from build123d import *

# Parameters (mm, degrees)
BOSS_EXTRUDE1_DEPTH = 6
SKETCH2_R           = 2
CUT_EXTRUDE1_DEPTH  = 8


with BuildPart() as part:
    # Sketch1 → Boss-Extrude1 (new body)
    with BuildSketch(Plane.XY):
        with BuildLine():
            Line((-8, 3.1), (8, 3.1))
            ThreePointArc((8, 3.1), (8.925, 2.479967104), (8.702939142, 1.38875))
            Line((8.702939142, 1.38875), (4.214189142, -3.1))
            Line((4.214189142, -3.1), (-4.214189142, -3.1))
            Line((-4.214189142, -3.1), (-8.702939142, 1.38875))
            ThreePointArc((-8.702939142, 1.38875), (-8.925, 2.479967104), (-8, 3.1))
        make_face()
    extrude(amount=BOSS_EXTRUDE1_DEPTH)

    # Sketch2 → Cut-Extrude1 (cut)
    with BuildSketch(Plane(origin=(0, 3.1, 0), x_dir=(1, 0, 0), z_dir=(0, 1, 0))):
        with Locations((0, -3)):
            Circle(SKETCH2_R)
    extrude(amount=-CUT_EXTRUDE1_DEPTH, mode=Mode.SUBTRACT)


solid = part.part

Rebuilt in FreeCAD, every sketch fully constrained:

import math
import FreeCAD as App
import Part
import Sketcher
Q = App.Units.Quantity

doc = App.newDocument("Part")
params = doc.addObject("Spreadsheet::Sheet", "Params")
for row, (alias, value) in enumerate([
    ("sketch1_radius", "1 mm"),
    ("sketch1_width", "16 mm"),
    ("pad1_length", "6 mm"),
    ("sketch2_diameter", "4 mm"),
    ("pocket1_length", "8 mm"),
], start=1):
    params.set(f"A{row}", alias)
    params.set(f"B{row}", "=" + value)
    params.setAlias(f"B{row}", alias)

body = doc.addObject("PartDesign::Body", "Body")

# Sketch on XY plane
sketch1 = body.newObject("Sketcher::SketchObject", "Sketch")
sketch1.AttachmentSupport = (doc.getObject("XY_Plane"), [""])
sketch1.MapMode = "FlatFace"
sketch1.addGeometry([
    Part.LineSegment(App.Vector(8, 3.1, 0), App.Vector(-8, 3.1, 0)),  # 0
    Part.ArcOfCircle(Part.Circle(App.Vector(-8, 2.1, 0), App.Vector(0, 0, 1), 1), math.radians(90), math.radians(225.33671)),  # 1
    Part.LineSegment(App.Vector(-8.702939, 1.38875, 0), App.Vector(-4.214189, -3.1, 0)),  # 2
    Part.LineSegment(App.Vector(-4.214189, -3.1, 0), App.Vector(4.214189, -3.1, 0)),  # 3
    Part.LineSegment(App.Vector(4.214189, -3.1, 0), App.Vector(8.702939, 1.38875, 0)),  # 4
    Part.ArcOfCircle(Part.Circle(App.Vector(8, 2.1, 0), App.Vector(0, 0, 1), 1), math.radians(-45.33671), math.radians(90)),  # 5
], False)
sketch1.addConstraint([
    Sketcher.Constraint("Tangent", 0, 2, 1, 1),
    Sketcher.Constraint("Coincident", 1, 2, 2, 1),
    Sketcher.Constraint("Coincident", 2, 2, 3, 1),
    Sketcher.Constraint("Coincident", 3, 2, 4, 1),
    Sketcher.Constraint("Coincident", 4, 2, 5, 1),
    Sketcher.Constraint("Tangent", 5, 2, 0, 1),
    Sketcher.Constraint("Horizontal", 0),
    Sketcher.Constraint("Horizontal", 3),
    Sketcher.Constraint("Equal", 1, 5),
    Sketcher.Constraint("Symmetric", 1, 2, 4, 2, -2),
    Sketcher.Constraint("Perpendicular", 2, 4),
    Sketcher.Constraint("Equal", 2, 4),
    Sketcher.Constraint("Radius", 1, Q("1 mm")),
    Sketcher.Constraint("DistanceX", 0, 2, 0, 1, Q("16 mm")),
    Sketcher.Constraint("DistanceY", -1, 1, 1, 3, Q("2.1 mm")),
    Sketcher.Constraint("DistanceY", 2, 2, -1, 1, Q("3.1 mm")),
    Sketcher.Constraint("DistanceX", 3, 1, 3, 2, Q("8.428378 mm")),
])
sketch1.setExpression("Constraints[12]", "Params.sketch1_radius")
sketch1.setExpression("Constraints[13]", "Params.sketch1_width")
pad1 = body.newObject("PartDesign::Pad", "Pad")
pad1.Profile = sketch1
pad1.setExpression("Length", "Params.pad1_length")

# Sketch on XZ plane
sketch2 = body.newObject("Sketcher::SketchObject", "Sketch001")
sketch2.AttachmentSupport = (doc.getObject("XZ_Plane"), [""])
sketch2.MapMode = "FlatFace"
sketch2.AttachmentOffset = App.Placement(App.Vector(0, 0, -3.1), App.Rotation())
sketch2.addGeometry(Part.Circle(App.Vector(0, 3, 0), App.Vector(0, 0, 1), 2), False)
sketch2.addConstraint([
    Sketcher.Constraint("PointOnObject", 0, 3, -2),
    Sketcher.Constraint("Diameter", 0, Q("4 mm")),
    Sketcher.Constraint("DistanceY", -1, 1, 0, 3, Q("3 mm")),
])
sketch2.setExpression("Constraints[1]", "Params.sketch2_diameter")
pocket1 = body.newObject("PartDesign::Pocket", "Pocket")
pocket1.Profile = sketch2
pocket1.setExpression("Length", "Params.pocket1_length")
pocket1.Reversed = True

doc.recompute()
